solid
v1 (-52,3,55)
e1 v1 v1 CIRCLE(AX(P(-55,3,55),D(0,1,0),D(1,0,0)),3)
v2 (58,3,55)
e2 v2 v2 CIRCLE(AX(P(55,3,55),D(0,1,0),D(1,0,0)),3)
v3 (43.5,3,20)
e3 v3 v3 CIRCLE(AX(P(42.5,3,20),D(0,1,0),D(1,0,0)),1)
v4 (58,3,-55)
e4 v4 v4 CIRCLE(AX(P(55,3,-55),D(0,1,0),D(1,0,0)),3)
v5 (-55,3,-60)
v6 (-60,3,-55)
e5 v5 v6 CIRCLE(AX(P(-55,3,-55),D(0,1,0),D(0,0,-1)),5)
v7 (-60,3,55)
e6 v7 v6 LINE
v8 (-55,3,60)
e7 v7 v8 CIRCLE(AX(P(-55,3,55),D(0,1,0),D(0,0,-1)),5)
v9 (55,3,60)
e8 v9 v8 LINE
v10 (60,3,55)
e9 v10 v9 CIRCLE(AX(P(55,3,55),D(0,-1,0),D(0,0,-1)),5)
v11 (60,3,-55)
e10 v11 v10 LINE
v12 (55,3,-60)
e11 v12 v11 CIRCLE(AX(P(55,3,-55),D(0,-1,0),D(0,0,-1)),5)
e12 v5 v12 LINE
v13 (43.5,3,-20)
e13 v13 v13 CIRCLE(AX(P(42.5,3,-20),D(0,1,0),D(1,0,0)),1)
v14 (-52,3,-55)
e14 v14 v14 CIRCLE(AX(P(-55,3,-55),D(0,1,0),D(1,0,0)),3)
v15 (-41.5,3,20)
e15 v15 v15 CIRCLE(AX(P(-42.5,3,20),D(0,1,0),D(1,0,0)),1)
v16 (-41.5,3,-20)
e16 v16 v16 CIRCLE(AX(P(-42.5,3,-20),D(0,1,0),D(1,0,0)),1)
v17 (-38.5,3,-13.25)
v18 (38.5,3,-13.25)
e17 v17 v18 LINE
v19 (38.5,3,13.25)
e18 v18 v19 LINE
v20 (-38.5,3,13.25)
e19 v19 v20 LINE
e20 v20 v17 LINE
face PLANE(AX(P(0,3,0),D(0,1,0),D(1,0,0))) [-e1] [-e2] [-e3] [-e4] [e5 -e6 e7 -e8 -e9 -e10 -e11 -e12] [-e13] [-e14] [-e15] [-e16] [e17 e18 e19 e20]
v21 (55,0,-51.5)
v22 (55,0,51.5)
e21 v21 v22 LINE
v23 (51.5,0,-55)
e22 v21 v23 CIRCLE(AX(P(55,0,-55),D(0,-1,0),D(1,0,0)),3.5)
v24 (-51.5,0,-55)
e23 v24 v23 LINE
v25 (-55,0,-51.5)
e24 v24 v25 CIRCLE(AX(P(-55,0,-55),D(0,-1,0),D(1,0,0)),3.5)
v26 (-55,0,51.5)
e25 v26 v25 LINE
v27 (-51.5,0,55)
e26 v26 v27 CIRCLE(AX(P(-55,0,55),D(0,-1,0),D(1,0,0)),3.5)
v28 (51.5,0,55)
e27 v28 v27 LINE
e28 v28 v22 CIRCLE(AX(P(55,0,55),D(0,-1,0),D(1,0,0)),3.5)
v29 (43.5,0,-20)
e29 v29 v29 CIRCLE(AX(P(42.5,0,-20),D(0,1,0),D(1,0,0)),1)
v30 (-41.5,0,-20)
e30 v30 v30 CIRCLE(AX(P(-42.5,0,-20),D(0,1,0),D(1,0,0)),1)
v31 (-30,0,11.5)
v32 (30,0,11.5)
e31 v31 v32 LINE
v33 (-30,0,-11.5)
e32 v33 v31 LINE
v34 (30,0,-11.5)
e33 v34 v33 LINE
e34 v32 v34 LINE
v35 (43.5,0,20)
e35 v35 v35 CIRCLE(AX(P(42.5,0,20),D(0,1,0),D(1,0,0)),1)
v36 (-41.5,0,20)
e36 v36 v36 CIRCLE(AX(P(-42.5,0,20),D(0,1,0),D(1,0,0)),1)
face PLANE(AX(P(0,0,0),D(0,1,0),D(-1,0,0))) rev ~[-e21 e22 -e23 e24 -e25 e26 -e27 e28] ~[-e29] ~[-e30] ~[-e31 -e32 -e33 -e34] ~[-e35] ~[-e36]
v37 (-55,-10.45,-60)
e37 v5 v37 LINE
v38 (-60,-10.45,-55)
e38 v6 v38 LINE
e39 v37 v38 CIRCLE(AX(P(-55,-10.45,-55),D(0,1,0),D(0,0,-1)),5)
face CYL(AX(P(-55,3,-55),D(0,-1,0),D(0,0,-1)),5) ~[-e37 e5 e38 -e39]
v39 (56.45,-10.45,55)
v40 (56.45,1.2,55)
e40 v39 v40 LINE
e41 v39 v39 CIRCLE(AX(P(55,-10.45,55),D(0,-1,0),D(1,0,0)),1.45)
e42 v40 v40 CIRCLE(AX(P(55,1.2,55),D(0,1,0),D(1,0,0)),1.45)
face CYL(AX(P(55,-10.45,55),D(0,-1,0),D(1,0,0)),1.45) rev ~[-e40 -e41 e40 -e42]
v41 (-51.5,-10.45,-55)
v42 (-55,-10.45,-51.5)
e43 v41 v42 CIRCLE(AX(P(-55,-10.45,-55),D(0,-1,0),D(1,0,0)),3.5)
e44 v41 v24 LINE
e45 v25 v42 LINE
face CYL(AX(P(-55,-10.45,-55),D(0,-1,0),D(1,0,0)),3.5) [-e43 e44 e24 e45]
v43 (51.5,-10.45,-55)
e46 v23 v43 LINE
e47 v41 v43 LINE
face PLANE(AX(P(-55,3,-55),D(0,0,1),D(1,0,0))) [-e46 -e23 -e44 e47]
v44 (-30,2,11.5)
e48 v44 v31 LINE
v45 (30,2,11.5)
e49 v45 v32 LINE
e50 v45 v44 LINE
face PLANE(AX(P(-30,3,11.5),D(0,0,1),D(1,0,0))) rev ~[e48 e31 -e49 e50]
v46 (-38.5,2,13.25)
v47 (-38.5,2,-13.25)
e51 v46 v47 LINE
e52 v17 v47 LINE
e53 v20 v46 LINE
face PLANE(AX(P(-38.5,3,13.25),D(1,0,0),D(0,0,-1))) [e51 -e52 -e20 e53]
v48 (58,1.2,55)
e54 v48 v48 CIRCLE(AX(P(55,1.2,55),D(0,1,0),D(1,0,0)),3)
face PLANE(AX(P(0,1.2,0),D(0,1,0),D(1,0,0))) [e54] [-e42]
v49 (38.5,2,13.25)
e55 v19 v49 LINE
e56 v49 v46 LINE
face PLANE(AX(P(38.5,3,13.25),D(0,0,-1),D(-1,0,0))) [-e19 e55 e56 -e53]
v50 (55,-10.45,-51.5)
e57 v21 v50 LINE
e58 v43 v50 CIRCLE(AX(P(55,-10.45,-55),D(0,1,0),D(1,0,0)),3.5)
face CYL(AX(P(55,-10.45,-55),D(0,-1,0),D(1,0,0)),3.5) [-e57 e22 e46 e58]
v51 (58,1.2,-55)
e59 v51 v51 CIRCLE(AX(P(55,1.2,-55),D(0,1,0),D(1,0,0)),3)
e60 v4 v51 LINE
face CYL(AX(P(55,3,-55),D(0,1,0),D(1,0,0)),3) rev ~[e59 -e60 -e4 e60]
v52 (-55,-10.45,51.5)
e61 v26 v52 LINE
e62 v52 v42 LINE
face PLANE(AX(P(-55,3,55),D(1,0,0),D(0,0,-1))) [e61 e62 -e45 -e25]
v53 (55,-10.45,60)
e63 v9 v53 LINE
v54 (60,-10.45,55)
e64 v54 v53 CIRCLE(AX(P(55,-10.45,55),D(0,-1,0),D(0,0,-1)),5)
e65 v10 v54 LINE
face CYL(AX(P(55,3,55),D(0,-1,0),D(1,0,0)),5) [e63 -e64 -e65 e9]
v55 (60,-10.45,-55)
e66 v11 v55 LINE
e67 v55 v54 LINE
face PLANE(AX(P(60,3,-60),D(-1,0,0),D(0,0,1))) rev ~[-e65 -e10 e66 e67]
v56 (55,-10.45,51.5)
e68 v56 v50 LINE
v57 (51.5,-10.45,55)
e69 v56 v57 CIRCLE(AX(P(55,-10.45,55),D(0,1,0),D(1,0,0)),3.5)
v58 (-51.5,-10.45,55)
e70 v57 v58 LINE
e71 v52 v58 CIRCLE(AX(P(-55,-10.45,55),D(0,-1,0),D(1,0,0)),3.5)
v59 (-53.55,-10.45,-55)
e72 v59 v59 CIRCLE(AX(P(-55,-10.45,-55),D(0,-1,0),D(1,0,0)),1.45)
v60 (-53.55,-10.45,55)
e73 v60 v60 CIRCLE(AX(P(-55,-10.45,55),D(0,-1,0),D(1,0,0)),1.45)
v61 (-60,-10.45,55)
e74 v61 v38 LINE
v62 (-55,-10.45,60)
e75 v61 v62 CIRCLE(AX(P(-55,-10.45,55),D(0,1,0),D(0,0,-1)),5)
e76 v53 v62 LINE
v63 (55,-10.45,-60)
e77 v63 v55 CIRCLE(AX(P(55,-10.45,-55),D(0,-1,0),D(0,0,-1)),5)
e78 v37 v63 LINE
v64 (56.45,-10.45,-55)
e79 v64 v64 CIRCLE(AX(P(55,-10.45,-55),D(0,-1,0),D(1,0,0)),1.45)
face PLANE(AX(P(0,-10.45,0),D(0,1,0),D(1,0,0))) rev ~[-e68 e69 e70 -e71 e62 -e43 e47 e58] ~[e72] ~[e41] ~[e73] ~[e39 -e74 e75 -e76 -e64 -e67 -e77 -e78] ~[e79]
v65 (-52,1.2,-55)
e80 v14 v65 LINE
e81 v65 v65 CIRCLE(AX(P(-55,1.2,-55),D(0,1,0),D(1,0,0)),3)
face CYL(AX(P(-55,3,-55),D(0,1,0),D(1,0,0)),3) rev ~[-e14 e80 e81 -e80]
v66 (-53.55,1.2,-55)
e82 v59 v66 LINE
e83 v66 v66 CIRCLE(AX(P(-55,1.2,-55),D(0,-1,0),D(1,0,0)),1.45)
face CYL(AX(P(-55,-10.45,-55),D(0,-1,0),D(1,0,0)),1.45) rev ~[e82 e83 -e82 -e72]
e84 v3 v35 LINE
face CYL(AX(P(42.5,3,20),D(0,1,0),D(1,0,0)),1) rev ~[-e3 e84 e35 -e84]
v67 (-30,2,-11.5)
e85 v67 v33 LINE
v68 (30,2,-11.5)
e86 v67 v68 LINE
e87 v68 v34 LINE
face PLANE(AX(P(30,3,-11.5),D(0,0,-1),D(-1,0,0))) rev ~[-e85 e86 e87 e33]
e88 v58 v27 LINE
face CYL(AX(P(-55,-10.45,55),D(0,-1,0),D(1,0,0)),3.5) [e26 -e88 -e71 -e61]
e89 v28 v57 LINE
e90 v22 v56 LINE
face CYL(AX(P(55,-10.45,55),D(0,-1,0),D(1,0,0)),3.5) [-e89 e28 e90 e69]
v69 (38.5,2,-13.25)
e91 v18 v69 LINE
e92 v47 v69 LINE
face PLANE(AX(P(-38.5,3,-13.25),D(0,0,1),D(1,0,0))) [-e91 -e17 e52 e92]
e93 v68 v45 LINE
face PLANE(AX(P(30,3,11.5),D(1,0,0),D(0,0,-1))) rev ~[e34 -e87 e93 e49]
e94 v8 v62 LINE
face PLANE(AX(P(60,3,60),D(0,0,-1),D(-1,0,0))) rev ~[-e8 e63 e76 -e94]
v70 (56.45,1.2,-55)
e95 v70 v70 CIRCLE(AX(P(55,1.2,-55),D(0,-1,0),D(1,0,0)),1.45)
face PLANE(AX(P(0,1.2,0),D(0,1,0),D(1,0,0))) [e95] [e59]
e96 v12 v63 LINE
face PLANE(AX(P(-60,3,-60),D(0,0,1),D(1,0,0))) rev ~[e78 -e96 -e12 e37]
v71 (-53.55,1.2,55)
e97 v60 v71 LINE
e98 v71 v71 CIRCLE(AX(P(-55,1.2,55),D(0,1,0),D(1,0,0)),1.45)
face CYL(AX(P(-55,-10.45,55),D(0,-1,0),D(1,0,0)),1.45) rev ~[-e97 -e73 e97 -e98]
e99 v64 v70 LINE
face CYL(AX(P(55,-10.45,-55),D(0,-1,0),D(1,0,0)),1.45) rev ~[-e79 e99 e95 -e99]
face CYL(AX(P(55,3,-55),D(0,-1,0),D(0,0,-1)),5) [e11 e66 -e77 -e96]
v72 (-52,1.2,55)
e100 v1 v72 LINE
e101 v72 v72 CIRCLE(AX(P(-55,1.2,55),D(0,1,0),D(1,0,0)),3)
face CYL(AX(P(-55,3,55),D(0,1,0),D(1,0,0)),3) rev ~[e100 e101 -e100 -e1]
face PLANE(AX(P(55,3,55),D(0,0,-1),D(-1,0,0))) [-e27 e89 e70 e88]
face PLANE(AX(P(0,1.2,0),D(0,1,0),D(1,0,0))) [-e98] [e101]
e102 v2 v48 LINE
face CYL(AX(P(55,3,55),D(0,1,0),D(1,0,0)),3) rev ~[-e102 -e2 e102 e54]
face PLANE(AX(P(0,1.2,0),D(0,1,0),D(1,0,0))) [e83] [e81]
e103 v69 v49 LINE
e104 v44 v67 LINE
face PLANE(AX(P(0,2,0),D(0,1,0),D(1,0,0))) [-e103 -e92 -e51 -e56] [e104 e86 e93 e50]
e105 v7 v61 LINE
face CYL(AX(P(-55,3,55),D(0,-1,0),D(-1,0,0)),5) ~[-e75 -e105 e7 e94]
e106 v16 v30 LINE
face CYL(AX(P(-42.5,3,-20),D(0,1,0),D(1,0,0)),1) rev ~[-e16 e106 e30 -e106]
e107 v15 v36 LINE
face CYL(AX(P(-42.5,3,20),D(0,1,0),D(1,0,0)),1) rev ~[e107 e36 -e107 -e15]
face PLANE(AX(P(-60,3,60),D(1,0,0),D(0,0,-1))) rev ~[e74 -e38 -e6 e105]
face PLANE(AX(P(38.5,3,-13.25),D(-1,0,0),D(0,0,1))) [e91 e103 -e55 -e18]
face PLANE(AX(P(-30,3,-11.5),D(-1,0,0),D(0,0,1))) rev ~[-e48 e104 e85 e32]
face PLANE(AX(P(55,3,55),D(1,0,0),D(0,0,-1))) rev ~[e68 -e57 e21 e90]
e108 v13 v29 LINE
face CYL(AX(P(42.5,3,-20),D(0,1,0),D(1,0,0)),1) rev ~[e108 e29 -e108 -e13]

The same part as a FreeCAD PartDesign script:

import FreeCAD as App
import Part
import Sketcher
from FreeCAD import Vector
Q = App.Units.Quantity


def edges_at(feature, points):
    """Names of the edges that pass closest to the given points."""
    edges = feature.Shape.Edges
    near = lambda p: min(range(len(edges)), key=lambda i: edges[i].distToShape(Part.Vertex(*p))[0])
    return sorted({f"Edge{near(p) + 1}" for p in points})

doc = App.newDocument("Part")
body = doc.addObject("PartDesign::Body", "Body")

sketch1 = body.newObject("Sketcher::SketchObject", "Sketch")
sketch1.AttachmentSupport = (doc.getObject("XZ_Plane"), [""])
sketch1.MapMode = "FlatFace"
sketch1.addGeometry([
    Part.LineSegment(Vector(-55, 55, 0), Vector(55, 55, 0)),
    Part.LineSegment(Vector(55, 55, 0), Vector(55, -55, 0)),
    Part.LineSegment(Vector(55, -55, 0), Vector(-55, -55, 0)),
    Part.LineSegment(Vector(-55, -55, 0), Vector(-55, 55, 0)),
], False)
sketch1.addConstraint([
    Sketcher.Constraint("Coincident", 0, 2, 1, 1),
    Sketcher.Constraint("Coincident", 1, 2, 2, 1),
    Sketcher.Constraint("Coincident", 2, 2, 3, 1),
    Sketcher.Constraint("Coincident", 3, 2, 0, 1),
    Sketcher.Constraint("Horizontal", 0),
    Sketcher.Constraint("Vertical", 1),
    Sketcher.Constraint("Horizontal", 2),
    Sketcher.Constraint("Vertical", 3),
    Sketcher.Constraint("Symmetric", 0, 2, 2, 2, -1, 1),
    Sketcher.Constraint("Equal", 2, 1),
    Sketcher.Constraint("DistanceX", 0, 1, 0, 2, Q("110 mm")),
])
pad1 = body.newObject("PartDesign::Pad", "Pad")
pad1.Profile = sketch1
pad1.Length = 3
pad1.Reversed = True

sketch2 = body.newObject("Sketcher::SketchObject", "Sketch001")
sketch2.AttachmentSupport = (doc.getObject("XZ_Plane"), [""])
sketch2.MapMode = "FlatFace"
sketch2.AttachmentOffset = App.Placement(Vector(0, 0, -3), App.Rotation())
sketch2.addGeometry([
    Part.LineSegment(Vector(-30, -12, 0), Vector(-30, 12, 0)),
    Part.LineSegment(Vector(-30, 12, 0), Vector(30, 12, 0)),
    Part.LineSegment(Vector(30, 12, 0), Vector(30, -12, 0)),
    Part.LineSegment(Vector(30, -12, 0), Vector(-30, -12, 0)),
], False)
sketch2.addConstraint([
    Sketcher.Constraint("Coincident", 0, 2, 1, 1),
    Sketcher.Constraint("Coincident", 1, 2, 2, 1),
    Sketcher.Constraint("Coincident", 2, 2, 3, 1),
    Sketcher.Constraint("Coincident", 3, 2, 0, 1),
    Sketcher.Constraint("Vertical", 0),
    Sketcher.Constraint("Horizontal", 1),
    Sketcher.Constraint("Vertical", 2),
    Sketcher.Constraint("Horizontal", 3),
    Sketcher.Constraint("Symmetric", 0, 2, 2, 2, -1, 1),
    Sketcher.Constraint("DistanceX", 1, 1, 1, 2, Q("60 mm")),
    Sketcher.Constraint("DistanceY", 0, 1, 0, 2, Q("23 mm")),
])
pocket1 = body.newObject("PartDesign::Pocket", "Pocket")
pocket1.Profile = sketch2
pocket1.Length = 10
pocket1.Reversed = True

sketch3 = body.newObject("Sketcher::SketchObject", "Sketch002")
sketch3.AttachmentSupport = (doc.getObject("XZ_Plane"), [""])
sketch3.MapMode = "FlatFace"
sketch3.AttachmentOffset = App.Placement(Vector(0, 0, -3), App.Rotation())
sketch3.addGeometry([
    Part.LineSegment(Vector(38, -13, 0), Vector(-38, -13, 0)),
    Part.LineSegment(Vector(-38, -13, 0), Vector(-38, 13, 0)),
    Part.LineSegment(Vector(-38, 13, 0), Vector(38, 13, 0)),
    Part.LineSegment(Vector(38, 13, 0), Vector(38, -13, 0)),
], False)
sketch3.addConstraint([
    Sketcher.Constraint("Coincident", 0, 2, 1, 1),
    Sketcher.Constraint("Coincident", 1, 2, 2, 1),
    Sketcher.Constraint("Coincident", 2, 2, 3, 1),
    Sketcher.Constraint("Coincident", 3, 2, 0, 1),
    Sketcher.Constraint("Horizontal", 0),
    Sketcher.Constraint("Vertical", 1),
    Sketcher.Constraint("Horizontal", 2),
    Sketcher.Constraint("Vertical", 3),
    Sketcher.Constraint("Symmetric", 0, 2, 2, 2, -1, 1),
    Sketcher.Constraint("DistanceX", 0, 2, 0, 1, Q("77 mm")),
    Sketcher.Constraint("DistanceY", 1, 1, 1, 2, Q("26.5 mm")),
])
pocket2 = body.newObject("PartDesign::Pocket", "Pocket001")
pocket2.Profile = sketch3
pocket2.Length = 1
pocket2.Reversed = True

sketch4 = body.newObject("Sketcher::SketchObject", "Sketch003")
sketch4.AttachmentSupport = (doc.getObject("XZ_Plane"), [""])
sketch4.MapMode = "FlatFace"
sketch4.AttachmentOffset = App.Placement(Vector(0, 0, -3), App.Rotation())
sketch4.addGeometry([
    Part.Circle(Vector(-42.5, -20, 0), Vector(0, 0, 1), 1),
    Part.Circle(Vector(42.5, -20, 0), Vector(0, 0, 1), 1),
    Part.Circle(Vector(42.5, 20, 0), Vector(0, 0, 1), 1),
    Part.Circle(Vector(-42.5, 20, 0), Vector(0, 0, 1), 1),
], False)
sketch4.addConstraint([
    Sketcher.Constraint("Equal", 0, 1),
    Sketcher.Constraint("Equal", 1, 2),
    Sketcher.Constraint("Equal", 2, 3),
    Sketcher.Constraint("Symmetric", 0, 3, 2, 3, -1, 1),
    Sketcher.Constraint("Symmetric", 1, 3, 3, 3, -1, 1),
    Sketcher.Constraint("Symmetric", 0, 3, 1, 3, -2),
    Sketcher.Constraint("Diameter", 0, Q("2 mm")),
    Sketcher.Constraint("DistanceX", 0, 3, 1, 3, Q("85 mm")),
    Sketcher.Constraint("DistanceY", 1, 3, 2, 3, Q("40 mm")),
])
pocket3 = body.newObject("PartDesign::Pocket", "Pocket002")
pocket3.Profile = sketch4
pocket3.Type = "ThroughAll"
pocket3.Reversed = True

sketch5 = body.newObject("Sketcher::SketchObject", "Sketch004")
sketch5.AttachmentSupport = (doc.getObject("XZ_Plane"), [""])
sketch5.MapMode = "FlatFace"
sketch5.AttachmentOffset = App.Placement(Vector(0, 0, -3), App.Rotation())
sketch5.addGeometry([
    Part.LineSegment(Vector(60, -60, 0), Vector(-60, -60, 0)),
    Part.LineSegment(Vector(-60, -60, 0), Vector(-60, 60, 0)),
    Part.LineSegment(Vector(-60, 60, 0), Vector(60, 60, 0)),
    Part.LineSegment(Vector(60, 60, 0), Vector(60, -60, 0)),
    Part.LineSegment(Vector(55, -55, 0), Vector(55, 55, 0)),
    Part.LineSegment(Vector(55, 55, 0), Vector(-55, 55, 0)),
    Part.LineSegment(Vector(-55, 55, 0), Vector(-55, -55, 0)),
    Part.LineSegment(Vector(-55, -55, 0), Vector(55, -55, 0)),
], False)
sketch5.addConstraint([
    Sketcher.Constraint("Coincident", 0, 2, 1, 1),
    Sketcher.Constraint("Coincident", 1, 2, 2, 1),
    Sketcher.Constraint("Coincident", 2, 2, 3, 1),
    Sketcher.Constraint("Coincident", 3, 2, 0, 1),
    Sketcher.Constraint("Coincident", 4, 2, 5, 1),
    Sketcher.Constraint("Coincident", 5, 2, 6, 1),
    Sketcher.Constraint("Coincident", 6, 2, 7, 1),
    Sketcher.Constraint("Coincident", 7, 2, 4, 1),
    Sketcher.Constraint("Horizontal", 0),
    Sketcher.Constraint("Vertical", 1),
    Sketcher.Constraint("Horizontal", 2),
    Sketcher.Constraint("Vertical", 3),
    Sketcher.Constraint("Vertical", 4),
    Sketcher.Constraint("Horizontal", 5),
    Sketcher.Constraint("Vertical", 6),
    Sketcher.Constraint("Horizontal", 7),
    Sketcher.Constraint("Symmetric", 0, 2, 2, 2, -1, 1),
    Sketcher.Constraint("Symmetric", 4, 2, 6, 2, -1, 1),
    Sketcher.Constraint("Equal", 2, 1),
    Sketcher.Constraint("Equal", 7, 4),
    Sketcher.Constraint("DistanceX", 4, 2, 2, 2, Q("5 mm")),
    Sketcher.Constraint("DistanceX", 0, 2, 0, 1, Q("120 mm")),
])
pad2 = body.newObject("PartDesign::Pad", "Pad001")
pad2.Profile = sketch5
pad2.Length = 13.45

sketch6 = body.newObject("Sketcher::SketchObject", "Sketch005")
sketch6.AttachmentSupport = (doc.getObject("XZ_Plane"), [""])
sketch6.MapMode = "FlatFace"
sketch6.AttachmentOffset = App.Placement(Vector(0, 0, 10.45), App.Rotation())
sketch6.addGeometry([
    Part.Circle(Vector(-55, -55, 0), Vector(0, 0, 1), 3.5),
    Part.Circle(Vector(55, -55, 0), Vector(0, 0, 1), 3.5),
    Part.Circle(Vector(55, 55, 0), Vector(0, 0, 1), 3.5),
    Part.Circle(Vector(-55, 55, 0), Vector(0, 0, 1), 3.5),
], False)
sketch6.addConstraint([
    Sketcher.Constraint("Equal", 0, 1),
    Sketcher.Constraint("Equal", 1, 2),
    Sketcher.Constraint("Equal", 2, 3),
    Sketcher.Constraint("Symmetric", 0, 3, 2, 3, -1, 1),
    Sketcher.Constraint("Symmetric", 1, 3, 3, 3, -1, 1),
    Sketcher.Constraint("Symmetric", 0, 3, 1, 3, -2),
    Sketcher.Constraint("Diameter", 0, Q("7 mm")),
    Sketcher.Constraint("DistanceX", 0, 3, -1, 1, Q("55 mm")),
    Sketcher.Constraint("DistanceY", 0, 3, -1, 1, Q("55 mm")),
])
pad3 = body.newObject("PartDesign::Pad", "Pad002")
pad3.Profile = sketch6
pad3.Length = 13.45
pad3.Reversed = True
doc.recompute()

fillet = body.newObject("PartDesign::Fillet", "Fillet")
fillet.Base = (pad3, edges_at(pad3, [
    (60, -3.725, -60),
    (60, -3.725, 60),
    (-60, -3.725, -60),
    (-60, -3.725, 60),
]))
fillet.Radius = 5

sketch7 = body.newObject("Sketcher::SketchObject", "Sketch006")
sketch7.AttachmentSupport = (doc.getObject("XZ_Plane"), [""])
sketch7.MapMode = "FlatFace"
sketch7.AttachmentOffset = App.Placement(Vector(0, 0, 10.45), App.Rotation())
sketch7.addGeometry([
    Part.Circle(Vector(-55, 55, 0), Vector(0, 0, 1), 1.4),
    Part.Circle(Vector(55, 55, 0), Vector(0, 0, 1), 1.4),
    Part.Circle(Vector(55, -55, 0), Vector(0, 0, 1), 1.4),
    Part.Circle(Vector(-55, -55, 0), Vector(0, 0, 1), 1.4),
], False)
sketch7.addConstraint([
    Sketcher.Constraint("Equal", 0, 1),
    Sketcher.Constraint("Equal", 1, 2),
    Sketcher.Constraint("Equal", 2, 3),
    Sketcher.Constraint("Symmetric", 0, 3, 2, 3, -1, 1),
    Sketcher.Constraint("Symmetric", 1, 3, 3, 3, -1, 1),
    Sketcher.Constraint("Symmetric", 0, 3, 1, 3, -2),
    Sketcher.Constraint("Diameter", 0, Q("2.9 mm")),
    Sketcher.Constraint("DistanceX", 0, 3, -1, 1, Q("55 mm")),
    Sketcher.Constraint("DistanceY", -1, 1, 0, 3, Q("55 mm")),
])
pocket4 = body.newObject("PartDesign::Pocket", "Pocket003")
pocket4.Profile = sketch7
pocket4.Length = 13.45

sketch8 = body.newObject("Sketcher::SketchObject", "Sketch007")
sketch8.AttachmentSupport = (doc.getObject("XZ_Plane"), [""])
sketch8.MapMode = "FlatFace"
sketch8.AttachmentOffset = App.Placement(Vector(0, 0, -3), App.Rotation())
sketch8.addGeometry([
    Part.Circle(Vector(-55, -55, 0), Vector(0, 0, 1), 3),
    Part.Circle(Vector(55, -55, 0), Vector(0, 0, 1), 3),
    Part.Circle(Vector(55, 55, 0), Vector(0, 0, 1), 3),
    Part.Circle(Vector(55, 55, 0), Vector(0, 0, 1), 1.4),
    Part.Circle(Vector(-55, 55, 0), Vector(0, 0, 1), 3),
    Part.Circle(Vector(-55, 55, 0), Vector(0, 0, 1), 1.4),
], False)
sketch8.addConstraint([
    Sketcher.Constraint("Coincident", 3, 3, 2, 3),
    Sketcher.Constraint("Coincident", 5, 3, 4, 3),
    Sketcher.Constraint("Equal", 0, 1),
    Sketcher.Constraint("Equal", 1, 2),
    Sketcher.Constraint("Equal", 2, 4),
    Sketcher.Constraint("Equal", 3, 5),
    Sketcher.Constraint("Symmetric", 0, 3, 2, 3, -1, 1),
    Sketcher.Constraint("Symmetric", 1, 3, 4, 3, -1, 1),
    Sketcher.Constraint("Symmetric", 0, 3, 1, 3, -2),
    Sketcher.Constraint("Diameter", 0, Q("6 mm")),
    Sketcher.Constraint("Diameter", 3, Q("2.9 mm")),
    Sketcher.Constraint("DistanceX", 0, 3, -1, 1, Q("55 mm")),
    Sketcher.Constraint("DistanceY", 0, 3, -1, 1, Q("55 mm")),
])
pocket5 = body.newObject("PartDesign::Pocket", "Pocket004")
pocket5.Profile = sketch8
pocket5.Length = 1.8
pocket5.Reversed = True

doc.recompute()
